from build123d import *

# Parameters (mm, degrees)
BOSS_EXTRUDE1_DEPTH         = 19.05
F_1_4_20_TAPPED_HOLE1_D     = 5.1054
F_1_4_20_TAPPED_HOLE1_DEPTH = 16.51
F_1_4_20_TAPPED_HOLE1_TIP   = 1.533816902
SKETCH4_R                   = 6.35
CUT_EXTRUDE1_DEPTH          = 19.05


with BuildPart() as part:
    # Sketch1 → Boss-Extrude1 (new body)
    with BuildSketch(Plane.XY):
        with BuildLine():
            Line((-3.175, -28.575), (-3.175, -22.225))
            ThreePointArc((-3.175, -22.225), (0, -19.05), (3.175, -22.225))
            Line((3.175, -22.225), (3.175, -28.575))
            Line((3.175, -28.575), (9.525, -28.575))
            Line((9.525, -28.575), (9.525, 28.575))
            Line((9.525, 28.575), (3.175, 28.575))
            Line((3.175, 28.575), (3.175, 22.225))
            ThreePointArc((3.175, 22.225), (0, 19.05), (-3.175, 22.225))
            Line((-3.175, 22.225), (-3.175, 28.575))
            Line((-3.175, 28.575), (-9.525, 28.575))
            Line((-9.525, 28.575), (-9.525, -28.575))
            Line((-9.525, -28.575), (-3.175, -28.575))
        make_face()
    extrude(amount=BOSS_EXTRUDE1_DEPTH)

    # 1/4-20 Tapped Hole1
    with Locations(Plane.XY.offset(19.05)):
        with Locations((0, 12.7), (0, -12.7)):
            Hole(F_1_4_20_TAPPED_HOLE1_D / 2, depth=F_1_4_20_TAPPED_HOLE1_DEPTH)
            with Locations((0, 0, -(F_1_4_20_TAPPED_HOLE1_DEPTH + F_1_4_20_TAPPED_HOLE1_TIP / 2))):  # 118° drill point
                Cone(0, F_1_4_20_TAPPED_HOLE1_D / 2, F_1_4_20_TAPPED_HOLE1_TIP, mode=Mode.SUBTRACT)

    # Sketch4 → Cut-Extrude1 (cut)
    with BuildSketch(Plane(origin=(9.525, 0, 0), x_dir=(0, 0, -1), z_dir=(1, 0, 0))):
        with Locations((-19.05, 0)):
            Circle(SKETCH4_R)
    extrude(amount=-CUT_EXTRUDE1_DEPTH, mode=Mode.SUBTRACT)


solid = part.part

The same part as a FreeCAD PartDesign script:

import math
import FreeCAD as App
import Part
import Sketcher

V = App.Vector
Q = App.Units.Quantity

doc = App.newDocument("Part")
params = doc.addObject("Spreadsheet::Sheet", "Params")
for row, (alias, value) in enumerate([
    ("sketch1_radius", "0.125 in"),
    ("sketch1_width", "0.25 in"),
    ("pad1_length", "0.75 in"),
    ("sketch2_diameter", "0.201 in"),
    ("hole_diameter", "0.201 in"),
    ("hole_depth", "0.65 in"),
    ("sketch3_diameter", "0.5 in"),
    ("pocket1_length", "0.75 in"),
], start=1):
    params.set(f"A{row}", alias)
    params.set(f"B{row}", "=" + value)
    params.setAlias(f"B{row}", alias)

body = doc.addObject("PartDesign::Body", "Body")

# Sketch on XY plane
sketch1 = body.newObject("Sketcher::SketchObject", "Sketch")
sketch1.AttachmentSupport = (doc.getObject("XY_Plane"), [""])
sketch1.MapMode = "FlatFace"
sketch1.addGeometry([
    Part.LineSegment(V(-3.2, -28.6, 0), V(-3.2, -22.2, 0)),  # 0
    Part.ArcOfCircle(Part.Circle(V(0, -22.2, 0), V(0, 0, 1), 3.2), math.radians(0), math.radians(180)),  # 1
    Part.LineSegment(V(3.2, -22.2, 0), V(3.2, -28.6, 0)),  # 2
    Part.LineSegment(V(3.2, -28.6, 0), V(9.5, -28.6, 0)),  # 3
    Part.LineSegment(V(9.5, -28.6, 0), V(9.5, 28.6, 0)),  # 4
    Part.LineSegment(V(9.5, 28.6, 0), V(3.2, 28.6, 0)),  # 5
    Part.LineSegment(V(3.2, 28.6, 0), V(3.2, 22.2, 0)),  # 6
    Part.ArcOfCircle(Part.Circle(V(0, 22.2, 0), V(0, 0, 1), 3.2), math.radians(180), math.radians(360)),  # 7
    Part.LineSegment(V(-3.2, 22.2, 0), V(-3.2, 28.6, 0)),  # 8
    Part.LineSegment(V(-3.2, 28.6, 0), V(-9.5, 28.6, 0)),  # 9
    Part.LineSegment(V(-9.5, 28.6, 0), V(-9.5, -28.6, 0)),  # 10
    Part.LineSegment(V(-9.5, -28.6, 0), V(-3.2, -28.6, 0)),  # 11
], False)
sketch1.addConstraint([
    Sketcher.Constraint("Tangent", 0, 2, 1, 2),
    Sketcher.Constraint("Tangent", 1, 1, 2, 1),
    Sketcher.Constraint("Coincident", 2, 2, 3, 1),
    Sketcher.Constraint("Coincident", 3, 2, 4, 1),
    Sketcher.Constraint("Coincident", 4, 2, 5, 1),
    Sketcher.Constraint("Coincident", 5, 2, 6, 1),
    Sketcher.Constraint("Tangent", 6, 2, 7, 2),
    Sketcher.Constraint("Tangent", 7, 1, 8, 1),
    Sketcher.Constraint("Coincident", 8, 2, 9, 1),
    Sketcher.Constraint("Coincident", 9, 2, 10, 1),
    Sketcher.Constraint("Coincident", 10, 2, 11, 1),
    Sketcher.Constraint("Coincident", 11, 2, 0, 1),
    Sketcher.Constraint("Vertical", 0),
    Sketcher.Constraint("Vertical", 2),
    Sketcher.Constraint("Horizontal", 3),
    Sketcher.Constraint("Vertical", 4),
    Sketcher.Constraint("Horizontal", 5),
    Sketcher.Constraint("Vertical", 6),
    Sketcher.Constraint("Vertical", 8),
    Sketcher.Constraint("Horizontal", 9),
    Sketcher.Constraint("Vertical", 10),
    Sketcher.Constraint("Horizontal", 11),
    Sketcher.Constraint("Equal", 1, 7),
    Sketcher.Constraint("Symmetric", 1, 3, 7, 3, -1, 1),
    Sketcher.Constraint("Symmetric", 3, 2, 9, 2, -1, 1),
    Sketcher.Constraint("Symmetric", 5, 2, 8, 2, -2),
    Sketcher.Constraint("Horizontal", 3, 2, 10, 2),
    Sketcher.Constraint("Equal", 11, 0),
    Sketcher.Constraint("Radius", 1, Q("0.125 in")),
    Sketcher.Constraint("DistanceY", 2, 2, 7, 3, Q("2 in")),
    Sketcher.Constraint("DistanceX", 3, 1, 3, 2, Q("0.25 in")),
])
sketch1.setExpression("Constraints[28]", "Params.sketch1_radius")
sketch1.setExpression("Constraints[30]", "Params.sketch1_width")
pad1 = body.newObject("PartDesign::Pad", "Pad")
pad1.Profile = sketch1
pad1.setExpression("Length", "Params.pad1_length")

# Sketch on XY plane
sketch2 = body.newObject("Sketcher::SketchObject", "Sketch001")
sketch2.AttachmentSupport = (doc.getObject("XY_Plane"), [""])
sketch2.MapMode = "FlatFace"
sketch2.AttachmentOffset = App.Placement(V(0, 0, 0.75 * 25.4), App.Rotation())
sketch2.addGeometry([
    Part.Circle(V(0, 12.7, 0), V(0, 0, 1), 2.6),
    Part.Circle(V(0, -12.7, 0), V(0, 0, 1), 2.6),
], False)
sketch2.addConstraint([
    Sketcher.Constraint("Equal", 0, 1),
    Sketcher.Constraint("Symmetric", 0, 3, 1, 3, -1, 1),
    Sketcher.Constraint("PointOnObject", 0, 3, -2),
    Sketcher.Constraint("Diameter", 0, Q("0.201 in")),
    Sketcher.Constraint("DistanceY", 1, 3, 0, 3, Q("1 in")),
])
sketch2.setExpression("Constraints[3]", "Params.sketch2_diameter")
doc.recompute()
hole = body.newObject("PartDesign::Hole", "Hole")
hole.Profile = sketch2
hole.ThreadType = "None"
hole.setExpression("Diameter", "Params.hole_diameter")
hole.DepthType = "Dimension"
hole.setExpression("Depth", "Params.hole_depth")
hole.DrillPoint = "Angled"
hole.DrillPointAngle = 118

# Sketch on YZ plane
sketch3 = body.newObject("Sketcher::SketchObject", "Sketch002")
sketch3.AttachmentSupport = (doc.getObject("YZ_Plane"), [""])
sketch3.MapMode = "FlatFace"
sketch3.AttachmentOffset = App.Placement(V(0, 0, 0.375 * 25.4), App.Rotation())
sketch3.addGeometry(Part.Circle(V(0, 19, 0), V(0, 0, 1), 6), False)
sketch3.addConstraint([
    Sketcher.Constraint("PointOnObject", 0, 3, -2),
    Sketcher.Constraint("Diameter", 0, Q("0.5 in")),
    Sketcher.Constraint("DistanceY", -1, 1, 0, 3, Q("0.75 in")),
])
sketch3.setExpression("Constraints[1]", "Params.sketch3_diameter")
pocket1 = body.newObject("PartDesign::Pocket", "Pocket")
pocket1.Profile = sketch3
pocket1.setExpression("Length", "Params.pocket1_length")

doc.recompute()
